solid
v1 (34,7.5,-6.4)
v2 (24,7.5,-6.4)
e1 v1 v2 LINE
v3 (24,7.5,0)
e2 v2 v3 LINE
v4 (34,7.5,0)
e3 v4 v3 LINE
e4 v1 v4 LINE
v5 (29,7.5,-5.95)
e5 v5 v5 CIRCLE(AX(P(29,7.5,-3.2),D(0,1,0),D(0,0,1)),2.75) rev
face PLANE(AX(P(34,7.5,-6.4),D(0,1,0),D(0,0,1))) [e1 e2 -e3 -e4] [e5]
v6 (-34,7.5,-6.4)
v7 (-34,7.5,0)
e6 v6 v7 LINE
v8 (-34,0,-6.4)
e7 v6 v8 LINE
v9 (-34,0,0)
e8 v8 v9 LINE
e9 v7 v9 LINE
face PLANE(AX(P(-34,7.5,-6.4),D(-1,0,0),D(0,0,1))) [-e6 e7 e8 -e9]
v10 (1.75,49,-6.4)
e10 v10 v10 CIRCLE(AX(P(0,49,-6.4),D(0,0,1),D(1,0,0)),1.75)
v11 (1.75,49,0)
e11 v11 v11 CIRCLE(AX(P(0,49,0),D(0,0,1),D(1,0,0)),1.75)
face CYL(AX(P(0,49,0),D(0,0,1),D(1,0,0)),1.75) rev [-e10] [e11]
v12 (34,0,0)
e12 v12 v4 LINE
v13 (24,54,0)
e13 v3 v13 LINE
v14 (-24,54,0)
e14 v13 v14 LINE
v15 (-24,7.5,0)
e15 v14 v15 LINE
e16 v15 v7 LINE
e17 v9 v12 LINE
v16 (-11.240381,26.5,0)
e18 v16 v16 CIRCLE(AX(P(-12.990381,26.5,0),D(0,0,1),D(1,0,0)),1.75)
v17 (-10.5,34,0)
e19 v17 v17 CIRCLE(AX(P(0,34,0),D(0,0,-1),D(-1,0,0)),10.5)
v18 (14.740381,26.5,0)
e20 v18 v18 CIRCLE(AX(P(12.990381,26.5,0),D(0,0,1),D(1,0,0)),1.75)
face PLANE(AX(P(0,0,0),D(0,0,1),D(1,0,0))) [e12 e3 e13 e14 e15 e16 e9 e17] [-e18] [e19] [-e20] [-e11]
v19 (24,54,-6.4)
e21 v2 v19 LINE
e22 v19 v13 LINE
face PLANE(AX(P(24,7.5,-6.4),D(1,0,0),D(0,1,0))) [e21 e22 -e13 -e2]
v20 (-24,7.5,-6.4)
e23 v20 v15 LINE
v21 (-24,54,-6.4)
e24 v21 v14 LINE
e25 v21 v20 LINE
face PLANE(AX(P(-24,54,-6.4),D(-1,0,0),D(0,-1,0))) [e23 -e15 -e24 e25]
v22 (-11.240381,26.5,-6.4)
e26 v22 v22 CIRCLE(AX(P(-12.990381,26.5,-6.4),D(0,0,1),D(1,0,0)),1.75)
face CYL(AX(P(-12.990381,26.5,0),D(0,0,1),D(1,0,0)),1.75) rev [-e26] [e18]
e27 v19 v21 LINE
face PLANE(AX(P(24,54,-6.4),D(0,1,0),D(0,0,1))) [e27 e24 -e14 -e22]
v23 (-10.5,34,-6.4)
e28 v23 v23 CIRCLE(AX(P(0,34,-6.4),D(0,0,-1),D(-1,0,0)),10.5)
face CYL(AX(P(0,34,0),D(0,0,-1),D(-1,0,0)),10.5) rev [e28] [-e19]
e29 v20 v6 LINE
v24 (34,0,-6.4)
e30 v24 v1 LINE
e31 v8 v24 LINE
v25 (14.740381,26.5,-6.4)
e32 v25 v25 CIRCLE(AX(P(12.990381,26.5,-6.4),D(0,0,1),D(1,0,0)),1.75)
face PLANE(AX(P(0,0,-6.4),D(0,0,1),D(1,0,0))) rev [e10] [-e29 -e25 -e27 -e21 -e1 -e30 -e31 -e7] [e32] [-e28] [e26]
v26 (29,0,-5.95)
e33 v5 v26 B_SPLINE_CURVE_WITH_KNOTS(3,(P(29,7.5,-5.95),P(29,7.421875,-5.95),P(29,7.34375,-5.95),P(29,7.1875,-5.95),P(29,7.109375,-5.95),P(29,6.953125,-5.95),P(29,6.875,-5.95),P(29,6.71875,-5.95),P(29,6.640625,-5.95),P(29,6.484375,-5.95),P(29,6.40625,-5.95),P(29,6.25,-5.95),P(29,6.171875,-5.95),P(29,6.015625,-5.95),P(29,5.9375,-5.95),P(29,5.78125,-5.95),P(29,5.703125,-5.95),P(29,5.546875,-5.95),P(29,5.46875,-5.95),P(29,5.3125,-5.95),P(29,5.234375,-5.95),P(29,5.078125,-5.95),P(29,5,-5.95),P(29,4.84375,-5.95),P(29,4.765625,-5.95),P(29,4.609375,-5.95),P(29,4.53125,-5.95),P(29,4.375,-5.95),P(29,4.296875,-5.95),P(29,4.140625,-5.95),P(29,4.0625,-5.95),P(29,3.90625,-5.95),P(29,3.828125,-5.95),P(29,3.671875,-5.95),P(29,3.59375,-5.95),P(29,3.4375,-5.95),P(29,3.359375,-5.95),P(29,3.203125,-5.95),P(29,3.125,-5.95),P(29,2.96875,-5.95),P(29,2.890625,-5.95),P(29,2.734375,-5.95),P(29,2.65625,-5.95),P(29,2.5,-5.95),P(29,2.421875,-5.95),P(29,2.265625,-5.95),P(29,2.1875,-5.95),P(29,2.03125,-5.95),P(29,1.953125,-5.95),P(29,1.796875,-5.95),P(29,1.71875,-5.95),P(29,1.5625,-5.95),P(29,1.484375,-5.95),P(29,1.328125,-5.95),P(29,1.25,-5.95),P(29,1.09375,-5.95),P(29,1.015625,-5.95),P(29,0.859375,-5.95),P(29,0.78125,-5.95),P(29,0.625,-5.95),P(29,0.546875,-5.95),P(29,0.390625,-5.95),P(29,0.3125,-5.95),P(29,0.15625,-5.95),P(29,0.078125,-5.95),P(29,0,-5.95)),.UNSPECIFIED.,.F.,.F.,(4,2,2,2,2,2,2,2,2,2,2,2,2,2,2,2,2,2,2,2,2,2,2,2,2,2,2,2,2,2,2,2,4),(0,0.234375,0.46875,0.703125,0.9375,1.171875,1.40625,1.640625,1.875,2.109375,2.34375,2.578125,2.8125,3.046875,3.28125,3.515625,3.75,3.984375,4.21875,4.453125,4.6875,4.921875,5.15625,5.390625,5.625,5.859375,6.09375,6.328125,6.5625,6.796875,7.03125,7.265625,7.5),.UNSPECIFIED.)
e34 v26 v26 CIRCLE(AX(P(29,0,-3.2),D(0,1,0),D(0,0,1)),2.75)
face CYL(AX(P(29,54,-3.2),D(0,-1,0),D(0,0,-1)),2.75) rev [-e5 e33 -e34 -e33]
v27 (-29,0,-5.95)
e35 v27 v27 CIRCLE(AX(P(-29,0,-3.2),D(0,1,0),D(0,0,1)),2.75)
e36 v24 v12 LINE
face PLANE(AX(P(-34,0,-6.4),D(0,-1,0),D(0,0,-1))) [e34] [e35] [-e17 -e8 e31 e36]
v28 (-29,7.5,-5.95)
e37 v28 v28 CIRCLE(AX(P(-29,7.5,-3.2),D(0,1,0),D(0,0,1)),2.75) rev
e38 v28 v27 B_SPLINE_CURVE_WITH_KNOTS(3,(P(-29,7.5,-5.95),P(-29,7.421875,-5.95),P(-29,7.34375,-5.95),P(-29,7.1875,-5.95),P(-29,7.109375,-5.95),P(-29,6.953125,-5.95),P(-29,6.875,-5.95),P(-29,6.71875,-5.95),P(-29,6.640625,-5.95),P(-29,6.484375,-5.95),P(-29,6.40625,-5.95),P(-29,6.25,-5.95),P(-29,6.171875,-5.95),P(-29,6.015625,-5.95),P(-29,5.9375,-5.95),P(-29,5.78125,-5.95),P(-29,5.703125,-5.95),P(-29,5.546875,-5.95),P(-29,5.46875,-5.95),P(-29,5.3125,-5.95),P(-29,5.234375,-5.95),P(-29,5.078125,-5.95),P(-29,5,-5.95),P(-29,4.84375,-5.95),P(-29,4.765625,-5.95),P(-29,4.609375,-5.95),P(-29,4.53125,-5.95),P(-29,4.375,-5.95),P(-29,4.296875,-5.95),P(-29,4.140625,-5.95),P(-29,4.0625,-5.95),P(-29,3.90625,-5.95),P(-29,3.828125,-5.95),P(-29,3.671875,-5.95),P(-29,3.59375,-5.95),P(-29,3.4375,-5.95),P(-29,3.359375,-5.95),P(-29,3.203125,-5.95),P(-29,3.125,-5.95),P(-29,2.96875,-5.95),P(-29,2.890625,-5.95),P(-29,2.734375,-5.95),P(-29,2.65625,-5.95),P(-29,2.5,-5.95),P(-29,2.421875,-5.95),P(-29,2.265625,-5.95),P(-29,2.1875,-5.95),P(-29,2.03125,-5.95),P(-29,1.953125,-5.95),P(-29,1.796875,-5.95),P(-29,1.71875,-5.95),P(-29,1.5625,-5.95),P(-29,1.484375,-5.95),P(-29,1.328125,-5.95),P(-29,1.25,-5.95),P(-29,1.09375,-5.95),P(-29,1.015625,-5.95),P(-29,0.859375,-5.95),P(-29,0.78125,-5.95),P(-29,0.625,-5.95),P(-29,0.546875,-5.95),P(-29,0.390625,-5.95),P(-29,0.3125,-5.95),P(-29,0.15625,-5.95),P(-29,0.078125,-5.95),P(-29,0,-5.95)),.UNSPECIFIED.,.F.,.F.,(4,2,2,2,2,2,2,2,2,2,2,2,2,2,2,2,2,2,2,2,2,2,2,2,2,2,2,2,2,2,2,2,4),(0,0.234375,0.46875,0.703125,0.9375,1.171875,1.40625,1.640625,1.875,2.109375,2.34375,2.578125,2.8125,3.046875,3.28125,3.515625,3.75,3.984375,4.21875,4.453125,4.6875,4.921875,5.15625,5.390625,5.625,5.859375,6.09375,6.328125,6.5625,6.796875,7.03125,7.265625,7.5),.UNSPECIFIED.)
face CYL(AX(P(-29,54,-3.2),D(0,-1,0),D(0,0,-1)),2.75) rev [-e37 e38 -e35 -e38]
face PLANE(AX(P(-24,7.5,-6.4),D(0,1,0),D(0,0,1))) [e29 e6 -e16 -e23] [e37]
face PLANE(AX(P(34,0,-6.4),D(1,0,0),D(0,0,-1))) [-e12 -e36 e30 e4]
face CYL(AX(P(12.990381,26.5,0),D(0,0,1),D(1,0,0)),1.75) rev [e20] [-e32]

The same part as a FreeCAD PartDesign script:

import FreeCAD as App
import Part
import Sketcher
Q = App.Units.Quantity

doc = App.newDocument("Part")
body = doc.addObject("PartDesign::Body", "Body")

sketch1 = doc.addObject("Sketcher::SketchObject", "Sketch")
body.addObject(sketch1)
sketch1.AttachmentSupport = (doc.XY_Plane, [""])
sketch1.MapMode = "FlatFace"
sketch1.addGeometry(Part.LineSegment(App.Vector(-34, 0, 0), App.Vector(34, 0, 0)), False)
sketch1.addGeometry(Part.LineSegment(App.Vector(34, 0, 0), App.Vector(34, 7.5, 0)), False)
sketch1.addGeometry(Part.LineSegment(App.Vector(34, 7.5, 0), App.Vector(24, 7.5, 0)), False)
sketch1.addGeometry(Part.LineSegment(App.Vector(24, 7.5, 0), App.Vector(24, 54, 0)), False)
sketch1.addGeometry(Part.LineSegment(App.Vector(24, 54, 0), App.Vector(-24, 54, 0)), False)
sketch1.addGeometry(Part.LineSegment(App.Vector(-24, 54, 0), App.Vector(-24, 7.5, 0)), False)
sketch1.addGeometry(Part.LineSegment(App.Vector(-24, 7.5, 0), App.Vector(-34, 7.5, 0)), False)
sketch1.addGeometry(Part.LineSegment(App.Vector(-34, 7.5, 0), App.Vector(-34, 0, 0)), False)
sketch1.addGeometry(Part.Circle(App.Vector(0, 34, 0), App.Vector(0, 0, 1), 4.175), False)
sketch1.addConstraint(Sketcher.Constraint("Coincident", 0, 2, 1, 1))
sketch1.addConstraint(Sketcher.Constraint("Coincident", 1, 2, 2, 1))
sketch1.addConstraint(Sketcher.Constraint("Coincident", 2, 2, 3, 1))
sketch1.addConstraint(Sketcher.Constraint("Coincident", 3, 2, 4, 1))
sketch1.addConstraint(Sketcher.Constraint("Coincident", 4, 2, 5, 1))
sketch1.addConstraint(Sketcher.Constraint("Coincident", 5, 2, 6, 1))
sketch1.addConstraint(Sketcher.Constraint("Coincident", 6, 2, 7, 1))
sketch1.addConstraint(Sketcher.Constraint("Coincident", 7, 2, 0, 1))
sketch1.addConstraint(Sketcher.Constraint("Horizontal", 0))
sketch1.addConstraint(Sketcher.Constraint("Vertical", 1))
sketch1.addConstraint(Sketcher.Constraint("Horizontal", 2))
sketch1.addConstraint(Sketcher.Constraint("Vertical", 3))
sketch1.addConstraint(Sketcher.Constraint("Horizontal", 4))
sketch1.addConstraint(Sketcher.Constraint("Vertical", 5))
sketch1.addConstraint(Sketcher.Constraint("Horizontal", 6))
sketch1.addConstraint(Sketcher.Constraint("Vertical", 7))
sketch1.addConstraint(Sketcher.Constraint("Symmetric", 0, 2, 7, 2, -1, 1))
sketch1.addConstraint(Sketcher.Constraint("Symmetric", 2, 2, 5, 2, -2))
sketch1.addConstraint(Sketcher.Constraint("PointOnObject", 8, 3, -2))
sketch1.addConstraint(Sketcher.Constraint("Diameter", 8, Q("8.35 mm")))
sketch1.addConstraint(Sketcher.Constraint("DistanceX", 0, 1, 0, 2, Q("68 mm")))
sketch1.addConstraint(Sketcher.Constraint("DistanceX", 2, 2, 2, 1, Q("10 mm")))
sketch1.addConstraint(Sketcher.Constraint("DistanceY", 1, 1, 1, 2, Q("7.5 mm")))
sketch1.addConstraint(Sketcher.Constraint("DistanceY", 3, 1, 3, 2, Q("46.5 mm")))
sketch1.addConstraint(Sketcher.Constraint("DistanceY", -1, 1, 8, 3, Q("34 mm")))
pad1 = doc.addObject("PartDesign::Pad", "Pad")
body.addObject(pad1)
pad1.Profile = sketch1
pad1.Length = 6.4
pad1.Reversed = True

sketch2 = doc.addObject("Sketcher::SketchObject", "Sketch001")
body.addObject(sketch2)
sketch2.AttachmentSupport = (doc.XY_Plane, [""])
sketch2.MapMode = "FlatFace"
sketch2.AttachmentOffset = App.Placement(App.Vector(0, 0, -6.4), App.Rotation())
sketch2.addGeometry(Part.Circle(App.Vector(0, 34, 0), App.Vector(0, 0, 1), 10.5), False)
sketch2.addConstraint(Sketcher.Constraint("PointOnObject", 0, 3, -2))
sketch2.addConstraint(Sketcher.Constraint("Diameter", 0, Q("21 mm")))
sketch2.addConstraint(Sketcher.Constraint("DistanceY", -1, 1, 0, 3, Q("34 mm")))
pocket1 = doc.addObject("PartDesign::Pocket", "Pocket")
body.addObject(pocket1)
pocket1.Profile = sketch2
pocket1.Type = "ThroughAll"
pocket1.Reversed = True

sketch3 = doc.addObject("Sketcher::SketchObject", "Sketch002")
body.addObject(sketch3)
sketch3.AttachmentSupport = (doc.XY_Plane, [""])
sketch3.MapMode = "FlatFace"
sketch3.addGeometry(Part.Circle(App.Vector(0, 49, 0), App.Vector(0, 0, 1), 1.75), False)
sketch3.addConstraint(Sketcher.Constraint("PointOnObject", 0, 3, -2))
sketch3.addConstraint(Sketcher.Constraint("Diameter", 0, Q("3.5 mm")))
sketch3.addConstraint(Sketcher.Constraint("DistanceY", -1, 1, 0, 3, Q("49 mm")))
doc.recompute()
hole = doc.addObject("PartDesign::Hole", "Hole")
body.addObject(hole)
hole.Profile = sketch3
hole.ThreadType = "None"
hole.Diameter = 3.5
hole.DepthType = "ThroughAll"
doc.recompute()

datumline = doc.addObject("PartDesign::Line", "DatumLine")
body.addObject(datumline)
datumline.Placement = App.Placement(App.Vector(0, 34, 0), App.Rotation(App.Vector(0, 0, 1), App.Vector(0, 0, 1)))
polarpattern = doc.addObject("PartDesign::PolarPattern", "PolarPattern")
body.addObject(polarpattern)
polarpattern.Originals = [hole]
polarpattern.Axis = (datumline, [""])
polarpattern.Angle = 360
polarpattern.Occurrences = 3
body.Tip = polarpattern

sketch4 = doc.addObject("Sketcher::SketchObject", "Sketch003")
body.addObject(sketch4)
sketch4.AttachmentSupport = (doc.XZ_Plane, [""])
sketch4.MapMode = "FlatFace"
sketch4.AttachmentOffset = App.Placement(App.Vector(0, 0, -7.5), App.Rotation())
sketch4.addGeometry(Part.Circle(App.Vector(-29, -3.2, 0), App.Vector(0, 0, 1), 2.75), False)
sketch4.addGeometry(Part.Circle(App.Vector(29, -3.2, 0), App.Vector(0, 0, 1), 2.75), False)
sketch4.addConstraint(Sketcher.Constraint("Equal", 0, 1))
sketch4.addConstraint(Sketcher.Constraint("Symmetric", 0, 3, 1, 3, -2))
sketch4.addConstraint(Sketcher.Constraint("Diameter", 0, Q("5.5 mm")))
sketch4.addConstraint(Sketcher.Constraint("DistanceX", 0, 3, -1, 1, Q("29 mm")))
sketch4.addConstraint(Sketcher.Constraint("DistanceY", 0, 3, -1, 1, Q("3.2 mm")))
pocket2 = doc.addObject("PartDesign::Pocket", "Pocket001")
body.addObject(pocket2)
pocket2.Profile = sketch4
pocket2.Type = "ThroughAll"
pocket2.Midplane = True

doc.recompute()
